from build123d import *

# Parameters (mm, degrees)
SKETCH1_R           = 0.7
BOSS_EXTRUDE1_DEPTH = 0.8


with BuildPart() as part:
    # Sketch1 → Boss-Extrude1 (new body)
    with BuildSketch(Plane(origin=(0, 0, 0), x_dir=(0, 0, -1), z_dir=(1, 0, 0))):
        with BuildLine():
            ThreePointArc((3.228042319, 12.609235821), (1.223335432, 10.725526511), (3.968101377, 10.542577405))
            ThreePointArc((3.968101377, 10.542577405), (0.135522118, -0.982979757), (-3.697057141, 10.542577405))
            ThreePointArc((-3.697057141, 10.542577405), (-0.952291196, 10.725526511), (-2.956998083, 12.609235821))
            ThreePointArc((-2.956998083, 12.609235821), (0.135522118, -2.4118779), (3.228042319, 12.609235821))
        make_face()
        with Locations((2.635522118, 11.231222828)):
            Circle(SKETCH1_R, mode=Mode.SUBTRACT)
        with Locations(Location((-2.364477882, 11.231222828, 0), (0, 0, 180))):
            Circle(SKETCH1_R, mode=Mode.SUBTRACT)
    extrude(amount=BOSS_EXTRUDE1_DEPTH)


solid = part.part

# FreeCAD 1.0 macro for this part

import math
import FreeCAD as App
import Part
import Sketcher
from FreeCAD import Vector

doc = App.newDocument("Part")
params = doc.addObject("Spreadsheet::Sheet", "Params")
for row, (alias, value) in enumerate([
    ("sketch1_diameter", "1.4 mm"),
    ("sketch1_radius", "1.5 mm"),
    ("sketch1_radius2", "6.4 mm"),
    ("pad1_length", "0.8 mm"),
], start=1):
    params.set(f"A{row}", alias)
    params.set(f"B{row}", "=" + value)
    params.setAlias(f"B{row}", alias)

body = doc.addObject("PartDesign::Body", "Body")

# Sketch on YZ plane
sketch1 = body.newObject("Sketcher::SketchObject", "Sketch")
sketch1.AttachmentSupport = (doc.getObject("YZ_Plane"), [""])
sketch1.MapMode = "FlatFace"
sketch1.addGeometry([
    Part.ArcOfCircle(Part.Circle(Vector(11.2, -2.6, 0), Vector(0, 0, 1), 1.5), math.radians(-23), math.radians(243)),  # 0
    Part.ArcOfCircle(Part.Circle(Vector(5.4, -0.1, 0), Vector(0, 0, 1), 6.4), math.radians(37), math.radians(323)),  # 1
    Part.ArcOfCircle(Part.Circle(Vector(11.2, 2.4, 0), Vector(0, 0, 1), 1.5), math.radians(117), math.radians(383)),  # 2
    Part.ArcOfCircle(Part.Circle(Vector(5.4, -0.1, 0), Vector(0, 0, 1), 7.8), math.radians(23), math.radians(337)),  # 3
    Part.Circle(Vector(11.2, 2.4, 0), Vector(0, 0, 1), 0.7),  # 4
    Part.Circle(Vector(11.2, -2.6, 0), Vector(0, 0, 1), 0.7),  # 5
], False)
sketch1.addConstraint([
    Sketcher.Constraint("Coincident", 0, 2, 1, 2),
    Sketcher.Constraint("Coincident", 1, 1, 2, 1),
    Sketcher.Constraint("Tangent", 2, 2, 3, 1),
    Sketcher.Constraint("Tangent", 3, 2, 0, 1),
    Sketcher.Constraint("Coincident", 3, 3, 1, 3),
    Sketcher.Constraint("Coincident", 4, 3, 2, 3),
    Sketcher.Constraint("Coincident", 5, 3, 0, 3),
    Sketcher.Constraint("Equal", 0, 2),
    Sketcher.Constraint("Equal", 4, 5),
    Sketcher.Constraint("Vertical", 0, 3, 2, 3),
    Sketcher.Constraint("Diameter", 4, 1.4),
    Sketcher.Constraint("Radius", 0, 1.5),
    Sketcher.Constraint("Radius", 1, 6.4),
    Sketcher.Constraint("DistanceY", 0, 3, 2, 3, 5.0),
    Sketcher.Constraint("Radius", 3, 7.828898),
    Sketcher.Constraint("DistanceY", -1, 1, 2, 2, 2.956998),
    Sketcher.Constraint("DistanceX", -1, 1, 1, 3, 5.41702),
])
sketch1.setExpression("Constraints[10]", "Params.sketch1_diameter")
sketch1.setExpression("Constraints[11]", "Params.sketch1_radius")
sketch1.setExpression("Constraints[12]", "Params.sketch1_radius2")
pad1 = body.newObject("PartDesign::Pad", "Pad")
pad1.Profile = sketch1
pad1.setExpression("Length", "Params.pad1_length")

doc.recompute()
